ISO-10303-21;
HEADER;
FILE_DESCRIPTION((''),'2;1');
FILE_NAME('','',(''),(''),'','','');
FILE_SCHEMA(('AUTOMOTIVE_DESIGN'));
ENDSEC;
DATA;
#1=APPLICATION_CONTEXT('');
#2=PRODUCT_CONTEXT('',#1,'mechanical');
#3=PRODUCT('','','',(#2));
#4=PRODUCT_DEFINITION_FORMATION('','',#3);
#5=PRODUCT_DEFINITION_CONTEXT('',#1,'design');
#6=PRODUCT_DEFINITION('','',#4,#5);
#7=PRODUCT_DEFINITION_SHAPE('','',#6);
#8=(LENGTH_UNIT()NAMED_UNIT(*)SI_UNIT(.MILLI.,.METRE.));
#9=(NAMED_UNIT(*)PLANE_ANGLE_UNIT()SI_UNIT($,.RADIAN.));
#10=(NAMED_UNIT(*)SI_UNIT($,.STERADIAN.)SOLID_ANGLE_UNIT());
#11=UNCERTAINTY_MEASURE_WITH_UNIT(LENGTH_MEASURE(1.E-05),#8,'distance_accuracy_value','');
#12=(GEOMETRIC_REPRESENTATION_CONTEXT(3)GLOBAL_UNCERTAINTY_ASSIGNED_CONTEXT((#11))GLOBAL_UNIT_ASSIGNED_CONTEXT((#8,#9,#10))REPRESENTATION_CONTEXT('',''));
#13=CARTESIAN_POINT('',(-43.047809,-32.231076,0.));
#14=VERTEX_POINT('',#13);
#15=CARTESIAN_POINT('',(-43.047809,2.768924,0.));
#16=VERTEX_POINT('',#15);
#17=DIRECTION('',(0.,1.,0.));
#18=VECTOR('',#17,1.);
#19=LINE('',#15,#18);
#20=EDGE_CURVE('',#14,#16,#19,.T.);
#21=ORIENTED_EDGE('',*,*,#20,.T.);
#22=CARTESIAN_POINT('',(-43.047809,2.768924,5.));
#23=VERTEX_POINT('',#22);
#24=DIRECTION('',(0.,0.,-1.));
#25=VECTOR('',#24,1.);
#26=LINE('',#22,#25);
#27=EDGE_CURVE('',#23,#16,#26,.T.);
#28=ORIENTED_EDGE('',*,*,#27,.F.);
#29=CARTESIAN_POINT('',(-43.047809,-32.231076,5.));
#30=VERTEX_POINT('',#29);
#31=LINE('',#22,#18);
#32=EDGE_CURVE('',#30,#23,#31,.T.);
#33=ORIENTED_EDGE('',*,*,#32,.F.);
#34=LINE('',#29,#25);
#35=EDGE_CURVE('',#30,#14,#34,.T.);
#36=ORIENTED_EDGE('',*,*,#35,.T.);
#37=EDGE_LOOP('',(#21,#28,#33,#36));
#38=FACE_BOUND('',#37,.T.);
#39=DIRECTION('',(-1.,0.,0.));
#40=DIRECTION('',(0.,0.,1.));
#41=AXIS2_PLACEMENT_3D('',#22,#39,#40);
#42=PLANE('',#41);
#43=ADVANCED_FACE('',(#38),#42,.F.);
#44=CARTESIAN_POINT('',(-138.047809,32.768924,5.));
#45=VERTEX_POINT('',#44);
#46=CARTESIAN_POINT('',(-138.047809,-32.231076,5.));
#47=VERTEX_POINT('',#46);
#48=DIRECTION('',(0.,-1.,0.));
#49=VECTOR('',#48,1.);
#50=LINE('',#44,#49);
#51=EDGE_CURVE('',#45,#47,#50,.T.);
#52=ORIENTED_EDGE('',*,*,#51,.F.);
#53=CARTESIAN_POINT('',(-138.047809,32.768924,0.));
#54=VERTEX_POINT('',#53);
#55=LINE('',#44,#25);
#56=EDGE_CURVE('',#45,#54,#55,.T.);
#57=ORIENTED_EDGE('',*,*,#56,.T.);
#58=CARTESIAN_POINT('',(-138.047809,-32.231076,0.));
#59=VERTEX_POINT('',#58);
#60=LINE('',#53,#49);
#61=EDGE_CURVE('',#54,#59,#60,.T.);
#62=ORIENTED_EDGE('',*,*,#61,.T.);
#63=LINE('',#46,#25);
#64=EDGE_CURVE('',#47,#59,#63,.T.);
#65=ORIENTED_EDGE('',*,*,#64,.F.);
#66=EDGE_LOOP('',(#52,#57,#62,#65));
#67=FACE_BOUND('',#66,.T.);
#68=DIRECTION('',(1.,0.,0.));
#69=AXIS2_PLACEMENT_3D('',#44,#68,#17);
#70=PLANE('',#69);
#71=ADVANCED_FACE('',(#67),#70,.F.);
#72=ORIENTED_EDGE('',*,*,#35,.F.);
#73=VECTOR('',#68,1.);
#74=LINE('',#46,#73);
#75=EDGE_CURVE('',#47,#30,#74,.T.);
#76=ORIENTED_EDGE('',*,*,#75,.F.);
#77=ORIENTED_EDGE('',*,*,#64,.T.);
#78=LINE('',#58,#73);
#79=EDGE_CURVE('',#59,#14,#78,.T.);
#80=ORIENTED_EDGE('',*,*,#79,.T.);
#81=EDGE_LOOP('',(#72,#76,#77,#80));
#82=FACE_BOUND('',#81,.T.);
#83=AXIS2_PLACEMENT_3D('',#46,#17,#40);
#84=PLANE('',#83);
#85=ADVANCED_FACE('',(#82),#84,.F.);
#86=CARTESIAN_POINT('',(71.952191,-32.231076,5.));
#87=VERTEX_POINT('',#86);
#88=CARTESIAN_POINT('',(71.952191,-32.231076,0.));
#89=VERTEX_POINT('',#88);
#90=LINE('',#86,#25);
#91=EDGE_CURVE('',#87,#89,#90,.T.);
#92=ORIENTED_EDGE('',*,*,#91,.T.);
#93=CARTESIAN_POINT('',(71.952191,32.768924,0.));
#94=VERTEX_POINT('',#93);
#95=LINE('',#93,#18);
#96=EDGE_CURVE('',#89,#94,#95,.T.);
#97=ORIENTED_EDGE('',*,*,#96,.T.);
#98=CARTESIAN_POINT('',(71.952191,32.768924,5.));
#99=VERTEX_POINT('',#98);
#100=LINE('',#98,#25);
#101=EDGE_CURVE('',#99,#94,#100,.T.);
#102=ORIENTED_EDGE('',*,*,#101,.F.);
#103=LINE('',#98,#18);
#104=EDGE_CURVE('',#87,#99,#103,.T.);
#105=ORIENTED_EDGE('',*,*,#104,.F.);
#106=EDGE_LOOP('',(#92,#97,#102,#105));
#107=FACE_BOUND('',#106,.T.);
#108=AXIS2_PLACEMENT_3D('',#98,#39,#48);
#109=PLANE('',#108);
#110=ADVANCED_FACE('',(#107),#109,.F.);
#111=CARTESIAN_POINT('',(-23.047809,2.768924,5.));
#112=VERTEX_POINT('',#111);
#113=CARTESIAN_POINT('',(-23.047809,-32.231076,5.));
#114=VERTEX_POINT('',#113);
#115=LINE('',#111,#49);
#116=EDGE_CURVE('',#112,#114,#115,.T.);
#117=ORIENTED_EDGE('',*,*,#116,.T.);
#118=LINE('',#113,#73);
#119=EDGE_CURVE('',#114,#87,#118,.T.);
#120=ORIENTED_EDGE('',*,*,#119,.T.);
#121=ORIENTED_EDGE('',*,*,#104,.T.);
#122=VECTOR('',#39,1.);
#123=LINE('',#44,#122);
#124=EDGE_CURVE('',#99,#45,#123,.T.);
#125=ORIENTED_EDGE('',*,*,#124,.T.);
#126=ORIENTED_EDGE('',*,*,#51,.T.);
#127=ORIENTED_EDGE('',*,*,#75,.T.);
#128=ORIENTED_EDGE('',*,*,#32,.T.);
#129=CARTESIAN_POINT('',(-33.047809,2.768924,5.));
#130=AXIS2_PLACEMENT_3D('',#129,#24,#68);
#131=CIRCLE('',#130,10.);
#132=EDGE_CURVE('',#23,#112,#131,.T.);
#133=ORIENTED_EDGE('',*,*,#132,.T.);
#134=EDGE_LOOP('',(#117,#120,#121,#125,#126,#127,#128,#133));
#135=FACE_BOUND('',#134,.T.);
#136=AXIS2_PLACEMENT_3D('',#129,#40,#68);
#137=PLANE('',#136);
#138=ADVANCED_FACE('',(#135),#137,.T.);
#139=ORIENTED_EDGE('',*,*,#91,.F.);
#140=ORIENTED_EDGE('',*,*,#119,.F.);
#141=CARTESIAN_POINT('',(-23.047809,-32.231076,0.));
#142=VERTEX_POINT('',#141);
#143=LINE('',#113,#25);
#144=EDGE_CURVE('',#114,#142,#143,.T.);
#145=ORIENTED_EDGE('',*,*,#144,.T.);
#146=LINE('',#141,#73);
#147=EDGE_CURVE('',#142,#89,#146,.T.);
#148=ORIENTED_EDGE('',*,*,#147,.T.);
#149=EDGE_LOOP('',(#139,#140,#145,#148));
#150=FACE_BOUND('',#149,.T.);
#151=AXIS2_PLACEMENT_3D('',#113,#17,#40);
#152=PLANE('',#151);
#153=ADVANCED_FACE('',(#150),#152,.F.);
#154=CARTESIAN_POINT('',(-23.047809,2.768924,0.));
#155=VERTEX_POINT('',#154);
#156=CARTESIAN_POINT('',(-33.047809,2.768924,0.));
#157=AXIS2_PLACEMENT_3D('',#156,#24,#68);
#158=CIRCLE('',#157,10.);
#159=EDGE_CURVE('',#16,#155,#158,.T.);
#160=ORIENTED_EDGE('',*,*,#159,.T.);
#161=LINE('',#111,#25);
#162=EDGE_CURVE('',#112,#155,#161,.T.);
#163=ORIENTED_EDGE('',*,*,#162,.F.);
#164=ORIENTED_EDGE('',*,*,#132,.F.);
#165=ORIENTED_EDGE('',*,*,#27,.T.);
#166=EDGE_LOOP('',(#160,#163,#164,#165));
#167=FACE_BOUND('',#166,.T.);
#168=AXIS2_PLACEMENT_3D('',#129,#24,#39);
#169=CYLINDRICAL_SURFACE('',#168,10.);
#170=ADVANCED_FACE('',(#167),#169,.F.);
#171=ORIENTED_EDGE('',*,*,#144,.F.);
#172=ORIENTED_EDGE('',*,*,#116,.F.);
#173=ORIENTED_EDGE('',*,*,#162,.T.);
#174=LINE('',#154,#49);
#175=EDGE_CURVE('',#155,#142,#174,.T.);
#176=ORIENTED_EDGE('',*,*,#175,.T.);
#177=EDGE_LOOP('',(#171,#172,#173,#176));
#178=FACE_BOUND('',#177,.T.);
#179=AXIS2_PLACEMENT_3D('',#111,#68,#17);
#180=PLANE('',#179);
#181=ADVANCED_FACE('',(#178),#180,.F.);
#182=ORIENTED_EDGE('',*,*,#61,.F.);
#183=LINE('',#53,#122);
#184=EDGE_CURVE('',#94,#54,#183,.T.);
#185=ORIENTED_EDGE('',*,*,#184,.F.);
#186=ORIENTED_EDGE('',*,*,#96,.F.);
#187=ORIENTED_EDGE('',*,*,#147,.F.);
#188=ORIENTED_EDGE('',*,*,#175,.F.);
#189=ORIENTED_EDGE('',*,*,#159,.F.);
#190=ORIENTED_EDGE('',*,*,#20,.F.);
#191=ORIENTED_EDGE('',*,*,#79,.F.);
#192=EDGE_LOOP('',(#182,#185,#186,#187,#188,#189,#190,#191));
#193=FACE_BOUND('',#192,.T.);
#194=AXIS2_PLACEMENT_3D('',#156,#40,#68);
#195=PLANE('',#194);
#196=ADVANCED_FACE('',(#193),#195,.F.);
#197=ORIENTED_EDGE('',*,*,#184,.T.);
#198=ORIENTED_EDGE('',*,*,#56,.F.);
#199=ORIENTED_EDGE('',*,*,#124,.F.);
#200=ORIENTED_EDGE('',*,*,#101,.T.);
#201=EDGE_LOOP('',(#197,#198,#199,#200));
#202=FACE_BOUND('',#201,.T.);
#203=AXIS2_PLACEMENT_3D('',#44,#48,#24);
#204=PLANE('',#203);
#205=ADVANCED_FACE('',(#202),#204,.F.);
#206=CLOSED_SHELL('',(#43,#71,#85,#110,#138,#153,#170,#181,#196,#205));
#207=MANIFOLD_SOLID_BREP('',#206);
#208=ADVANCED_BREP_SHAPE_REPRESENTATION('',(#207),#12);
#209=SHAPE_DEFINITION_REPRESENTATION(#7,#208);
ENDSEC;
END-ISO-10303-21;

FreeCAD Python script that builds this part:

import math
import FreeCAD as App
import Part
import Sketcher

doc = App.newDocument("Part")
body = doc.addObject("PartDesign::Body", "Body")

sketch1 = doc.addObject("Sketcher::SketchObject", "Sketch")
body.addObject(sketch1)
sketch1.AttachmentSupport = (doc.XY_Plane, [""])
sketch1.MapMode = "FlatFace"
sketch1.addGeometry(Part.LineSegment(App.Vector(-43, -32, 0), App.Vector(-43, 3, 0)), False)
sketch1.addGeometry(Part.ArcOfCircle(Part.Circle(App.Vector(-33, 3, 0), App.Vector(0, 0, 1), 10), math.radians(0), math.radians(180)), False)
sketch1.addGeometry(Part.LineSegment(App.Vector(-23, 3, 0), App.Vector(-23, -32, 0)), False)
sketch1.addGeometry(Part.LineSegment(App.Vector(-23, -32, 0), App.Vector(72, -32, 0)), False)
sketch1.addGeometry(Part.LineSegment(App.Vector(72, -32, 0), App.Vector(72, 33, 0)), False)
sketch1.addGeometry(Part.LineSegment(App.Vector(72, 33, 0), App.Vector(-138, 33, 0)), False)
sketch1.addGeometry(Part.LineSegment(App.Vector(-138, 33, 0), App.Vector(-138, -32, 0)), False)
sketch1.addGeometry(Part.LineSegment(App.Vector(-138, -32, 0), App.Vector(-43, -32, 0)), False)
sketch1.addConstraint(Sketcher.Constraint("Tangent", 0, 2, 1, 2))
sketch1.addConstraint(Sketcher.Constraint("Tangent", 1, 1, 2, 1))
sketch1.addConstraint(Sketcher.Constraint("Coincident", 2, 2, 3, 1))
sketch1.addConstraint(Sketcher.Constraint("Coincident", 3, 2, 4, 1))
sketch1.addConstraint(Sketcher.Constraint("Coincident", 4, 2, 5, 1))
sketch1.addConstraint(Sketcher.Constraint("Coincident", 5, 2, 6, 1))
sketch1.addConstraint(Sketcher.Constraint("Coincident", 6, 2, 7, 1))
sketch1.addConstraint(Sketcher.Constraint("Coincident", 7, 2, 0, 1))
sketch1.addConstraint(Sketcher.Constraint("Vertical", 0))
sketch1.addConstraint(Sketcher.Constraint("Vertical", 2))
sketch1.addConstraint(Sketcher.Constraint("Horizontal", 3))
sketch1.addConstraint(Sketcher.Constraint("Vertical", 4))
sketch1.addConstraint(Sketcher.Constraint("Horizontal", 5))
sketch1.addConstraint(Sketcher.Constraint("Vertical", 6))
sketch1.addConstraint(Sketcher.Constraint("Horizontal", 7))
sketch1.addConstraint(Sketcher.Constraint("Horizontal", 3, 2, 6, 2))
sketch1.addConstraint(Sketcher.Constraint("Equal", 3, 7))
sketch1.addConstraint(Sketcher.Constraint("Radius", 1, 10.0))
sketch1.addConstraint(Sketcher.Constraint("DistanceX", 3, 1, 3, 2, 95.0))
sketch1.addConstraint(Sketcher.Constraint("DistanceY", 0, 1, 0, 2, 35.0))
sketch1.addConstraint(Sketcher.Constraint("DistanceY", 4, 1, 4, 2, 65.0))
sketch1.addConstraint(Sketcher.Constraint("DistanceX", 1, 3, -1, 1, 33.047809))
sketch1.addConstraint(Sketcher.Constraint("DistanceY", -1, 1, 1, 3, 2.768924))
pad1 = doc.addObject("PartDesign::Pad", "Pad")
body.addObject(pad1)
pad1.Profile = sketch1
pad1.Length = 5

doc.recompute()
